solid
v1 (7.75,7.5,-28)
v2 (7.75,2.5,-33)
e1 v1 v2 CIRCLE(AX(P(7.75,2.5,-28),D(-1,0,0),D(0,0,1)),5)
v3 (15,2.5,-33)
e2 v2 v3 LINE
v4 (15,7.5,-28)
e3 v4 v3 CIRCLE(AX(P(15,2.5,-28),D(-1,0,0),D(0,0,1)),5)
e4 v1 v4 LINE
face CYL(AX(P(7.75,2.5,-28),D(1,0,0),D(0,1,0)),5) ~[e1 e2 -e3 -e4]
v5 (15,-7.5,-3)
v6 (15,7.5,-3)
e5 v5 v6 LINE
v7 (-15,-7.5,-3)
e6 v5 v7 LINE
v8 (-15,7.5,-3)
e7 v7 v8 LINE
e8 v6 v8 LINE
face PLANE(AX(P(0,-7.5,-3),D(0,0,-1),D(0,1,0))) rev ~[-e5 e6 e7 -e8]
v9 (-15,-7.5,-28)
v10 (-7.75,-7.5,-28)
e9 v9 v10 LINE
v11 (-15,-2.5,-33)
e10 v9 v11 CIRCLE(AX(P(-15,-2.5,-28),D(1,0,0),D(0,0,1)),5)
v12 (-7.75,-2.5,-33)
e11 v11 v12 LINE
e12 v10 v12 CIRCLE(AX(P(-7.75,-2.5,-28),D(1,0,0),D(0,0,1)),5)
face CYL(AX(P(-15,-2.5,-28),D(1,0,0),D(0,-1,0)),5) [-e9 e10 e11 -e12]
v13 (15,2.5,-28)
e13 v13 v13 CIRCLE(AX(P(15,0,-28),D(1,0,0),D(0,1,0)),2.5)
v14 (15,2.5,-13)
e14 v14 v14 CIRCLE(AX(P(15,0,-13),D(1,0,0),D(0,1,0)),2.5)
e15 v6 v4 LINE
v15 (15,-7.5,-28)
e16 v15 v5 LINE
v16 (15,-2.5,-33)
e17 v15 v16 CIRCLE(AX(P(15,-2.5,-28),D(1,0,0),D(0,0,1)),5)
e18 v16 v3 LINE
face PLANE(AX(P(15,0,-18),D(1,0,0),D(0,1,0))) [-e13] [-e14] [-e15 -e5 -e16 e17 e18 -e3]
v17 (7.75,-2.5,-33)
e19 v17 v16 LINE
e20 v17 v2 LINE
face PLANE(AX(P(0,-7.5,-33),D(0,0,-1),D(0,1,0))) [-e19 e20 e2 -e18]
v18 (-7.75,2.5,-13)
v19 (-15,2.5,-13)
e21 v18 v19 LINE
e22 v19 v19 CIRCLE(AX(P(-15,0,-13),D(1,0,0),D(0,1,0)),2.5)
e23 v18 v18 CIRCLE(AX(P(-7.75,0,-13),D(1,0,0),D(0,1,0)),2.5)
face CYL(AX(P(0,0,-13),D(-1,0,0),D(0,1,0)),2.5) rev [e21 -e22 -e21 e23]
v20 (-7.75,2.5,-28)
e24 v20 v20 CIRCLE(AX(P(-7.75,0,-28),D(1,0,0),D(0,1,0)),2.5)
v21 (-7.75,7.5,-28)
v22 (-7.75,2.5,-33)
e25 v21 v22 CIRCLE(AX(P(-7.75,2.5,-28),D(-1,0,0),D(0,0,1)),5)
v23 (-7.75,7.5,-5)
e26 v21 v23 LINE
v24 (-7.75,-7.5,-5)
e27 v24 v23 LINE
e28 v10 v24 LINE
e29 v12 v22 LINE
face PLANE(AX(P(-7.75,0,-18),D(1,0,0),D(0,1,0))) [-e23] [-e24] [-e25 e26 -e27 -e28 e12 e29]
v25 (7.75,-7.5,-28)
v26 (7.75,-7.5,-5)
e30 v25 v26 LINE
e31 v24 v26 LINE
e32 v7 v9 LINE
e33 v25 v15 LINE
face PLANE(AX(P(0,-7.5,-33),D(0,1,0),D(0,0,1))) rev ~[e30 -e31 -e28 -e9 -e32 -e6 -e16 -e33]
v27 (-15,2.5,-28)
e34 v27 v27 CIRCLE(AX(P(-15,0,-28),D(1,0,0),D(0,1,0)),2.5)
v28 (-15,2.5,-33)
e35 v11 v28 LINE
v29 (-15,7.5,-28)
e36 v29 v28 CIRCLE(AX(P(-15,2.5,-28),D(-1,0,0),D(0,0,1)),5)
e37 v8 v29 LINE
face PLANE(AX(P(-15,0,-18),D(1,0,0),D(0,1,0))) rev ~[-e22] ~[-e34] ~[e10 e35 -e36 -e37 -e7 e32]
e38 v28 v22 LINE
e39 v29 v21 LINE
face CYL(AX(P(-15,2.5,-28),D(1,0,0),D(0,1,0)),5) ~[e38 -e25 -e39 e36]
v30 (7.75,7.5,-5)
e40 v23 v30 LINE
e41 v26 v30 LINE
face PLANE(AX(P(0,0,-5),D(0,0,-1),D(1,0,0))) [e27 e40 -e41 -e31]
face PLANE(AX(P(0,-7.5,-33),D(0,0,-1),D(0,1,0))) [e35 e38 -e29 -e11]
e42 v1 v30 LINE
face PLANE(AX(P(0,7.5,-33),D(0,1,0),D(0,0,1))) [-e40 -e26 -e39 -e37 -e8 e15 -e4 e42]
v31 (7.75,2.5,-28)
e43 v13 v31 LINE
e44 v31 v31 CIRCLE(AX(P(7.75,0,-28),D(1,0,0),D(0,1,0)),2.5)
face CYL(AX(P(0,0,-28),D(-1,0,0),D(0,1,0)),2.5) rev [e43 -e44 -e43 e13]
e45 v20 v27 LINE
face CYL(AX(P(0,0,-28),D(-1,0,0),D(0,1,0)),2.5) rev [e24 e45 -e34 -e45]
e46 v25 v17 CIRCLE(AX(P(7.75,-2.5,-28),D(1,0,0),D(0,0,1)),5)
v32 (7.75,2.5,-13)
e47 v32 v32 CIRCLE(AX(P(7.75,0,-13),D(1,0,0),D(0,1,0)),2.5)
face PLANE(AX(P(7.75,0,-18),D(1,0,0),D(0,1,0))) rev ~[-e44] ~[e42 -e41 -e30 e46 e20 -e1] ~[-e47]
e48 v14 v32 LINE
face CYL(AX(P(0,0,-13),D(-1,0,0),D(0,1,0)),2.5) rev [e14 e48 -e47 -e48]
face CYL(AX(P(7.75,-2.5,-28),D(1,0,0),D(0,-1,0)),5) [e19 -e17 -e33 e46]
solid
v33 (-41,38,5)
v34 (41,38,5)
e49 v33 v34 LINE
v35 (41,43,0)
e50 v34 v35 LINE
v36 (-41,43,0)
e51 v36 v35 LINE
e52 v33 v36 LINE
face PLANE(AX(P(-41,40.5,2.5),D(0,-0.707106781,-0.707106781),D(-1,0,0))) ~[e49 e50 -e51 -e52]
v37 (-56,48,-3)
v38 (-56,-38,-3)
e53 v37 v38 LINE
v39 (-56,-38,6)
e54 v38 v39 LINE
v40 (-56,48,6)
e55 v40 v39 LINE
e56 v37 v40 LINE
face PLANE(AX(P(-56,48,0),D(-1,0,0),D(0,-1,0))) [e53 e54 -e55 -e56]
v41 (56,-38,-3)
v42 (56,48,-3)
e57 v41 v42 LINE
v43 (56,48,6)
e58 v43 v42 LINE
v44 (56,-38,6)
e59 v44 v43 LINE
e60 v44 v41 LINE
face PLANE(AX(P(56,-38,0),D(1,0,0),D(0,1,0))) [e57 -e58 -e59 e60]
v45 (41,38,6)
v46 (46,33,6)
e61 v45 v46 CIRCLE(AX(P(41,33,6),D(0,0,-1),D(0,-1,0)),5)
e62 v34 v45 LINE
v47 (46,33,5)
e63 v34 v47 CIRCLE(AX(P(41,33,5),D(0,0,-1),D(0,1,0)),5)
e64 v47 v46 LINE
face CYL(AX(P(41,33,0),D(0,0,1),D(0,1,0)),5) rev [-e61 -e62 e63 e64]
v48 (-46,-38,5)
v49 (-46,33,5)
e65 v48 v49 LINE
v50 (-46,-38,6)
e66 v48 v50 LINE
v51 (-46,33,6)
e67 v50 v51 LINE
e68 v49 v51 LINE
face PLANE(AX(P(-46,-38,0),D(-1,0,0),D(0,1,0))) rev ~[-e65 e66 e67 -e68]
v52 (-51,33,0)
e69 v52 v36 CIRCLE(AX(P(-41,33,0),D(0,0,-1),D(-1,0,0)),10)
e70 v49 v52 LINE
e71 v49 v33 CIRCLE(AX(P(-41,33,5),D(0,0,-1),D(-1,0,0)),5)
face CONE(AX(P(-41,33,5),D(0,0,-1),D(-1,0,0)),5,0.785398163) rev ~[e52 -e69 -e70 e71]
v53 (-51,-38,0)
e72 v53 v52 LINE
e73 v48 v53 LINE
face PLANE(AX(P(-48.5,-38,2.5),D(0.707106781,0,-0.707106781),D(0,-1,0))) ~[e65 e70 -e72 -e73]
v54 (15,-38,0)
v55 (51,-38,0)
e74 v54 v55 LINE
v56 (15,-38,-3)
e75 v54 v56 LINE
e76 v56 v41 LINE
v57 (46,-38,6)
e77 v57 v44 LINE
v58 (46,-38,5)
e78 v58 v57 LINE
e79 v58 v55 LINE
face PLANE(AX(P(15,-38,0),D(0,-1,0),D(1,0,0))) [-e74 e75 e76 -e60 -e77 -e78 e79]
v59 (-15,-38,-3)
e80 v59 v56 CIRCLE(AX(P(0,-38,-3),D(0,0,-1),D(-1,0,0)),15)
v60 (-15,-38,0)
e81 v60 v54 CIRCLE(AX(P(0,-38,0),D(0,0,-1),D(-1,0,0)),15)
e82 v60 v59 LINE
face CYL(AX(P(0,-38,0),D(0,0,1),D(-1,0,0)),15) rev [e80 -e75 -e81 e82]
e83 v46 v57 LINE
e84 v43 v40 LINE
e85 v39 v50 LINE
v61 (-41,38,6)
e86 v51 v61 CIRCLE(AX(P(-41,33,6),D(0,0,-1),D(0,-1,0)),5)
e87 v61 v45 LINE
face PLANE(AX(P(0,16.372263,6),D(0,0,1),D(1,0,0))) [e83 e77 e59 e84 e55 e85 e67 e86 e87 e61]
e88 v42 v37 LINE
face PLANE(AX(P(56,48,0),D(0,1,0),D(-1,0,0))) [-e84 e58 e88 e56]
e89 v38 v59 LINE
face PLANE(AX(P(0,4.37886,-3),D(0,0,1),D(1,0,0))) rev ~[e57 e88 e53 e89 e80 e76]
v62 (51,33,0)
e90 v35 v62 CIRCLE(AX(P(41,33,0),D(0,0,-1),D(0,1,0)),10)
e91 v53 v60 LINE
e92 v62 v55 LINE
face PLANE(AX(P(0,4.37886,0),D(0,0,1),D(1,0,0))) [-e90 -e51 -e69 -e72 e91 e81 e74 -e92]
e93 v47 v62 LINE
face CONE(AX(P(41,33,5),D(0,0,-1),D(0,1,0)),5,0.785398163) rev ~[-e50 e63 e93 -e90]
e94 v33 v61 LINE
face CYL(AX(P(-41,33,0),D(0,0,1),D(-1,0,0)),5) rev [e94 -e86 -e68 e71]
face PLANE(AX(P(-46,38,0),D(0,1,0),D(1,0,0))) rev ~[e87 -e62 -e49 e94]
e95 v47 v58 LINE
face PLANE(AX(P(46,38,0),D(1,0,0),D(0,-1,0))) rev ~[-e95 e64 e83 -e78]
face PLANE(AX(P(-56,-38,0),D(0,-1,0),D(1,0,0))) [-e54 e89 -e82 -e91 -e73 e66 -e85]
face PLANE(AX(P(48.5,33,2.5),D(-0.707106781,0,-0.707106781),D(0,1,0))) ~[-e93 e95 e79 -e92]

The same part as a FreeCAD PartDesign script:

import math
import FreeCAD as App
import Part
import Sketcher

V = App.Vector
Q = App.Units.Quantity


def edges_at(feature, points):
    """Names of the edges that pass closest to the given points."""
    edges = feature.Shape.Edges
    near = lambda p: min(range(len(edges)), key=lambda i: edges[i].distToShape(Part.Vertex(*p))[0])
    return sorted({f"Edge{near(p) + 1}" for p in points})


def add_polygon(sketch, points):
    """Adds a closed chain of lines whose ends are joined by coincident constraints."""
    first, n = sketch.GeometryCount, len(points)
    for a, b in zip(points, points[1:] + points[:1]):
        sketch.addGeometry(Part.LineSegment(App.Vector(*a, 0), App.Vector(*b, 0)), False)
    for i in range(n):
        sketch.addConstraint(Sketcher.Constraint("Coincident", first + i, 2, first + (i + 1) % n, 1))

doc = App.newDocument("Part")
body = doc.addObject("PartDesign::Body", "Body")

sketch1 = body.newObject("Sketcher::SketchObject", "Sketch")
sketch1.AttachmentSupport = (doc.getObject("XY_Plane"), [""])
sketch1.MapMode = "FlatFace"
add_polygon(sketch1, [(-46, -38), (-46, 38), (46, 38), (46, -38), (56, -38), (56, 48), (-56, 48), (-56, -38)])
sketch1.addConstraint([
    Sketcher.Constraint("Vertical", 0),
    Sketcher.Constraint("Horizontal", 1),
    Sketcher.Constraint("Vertical", 2),
    Sketcher.Constraint("Horizontal", 3),
    Sketcher.Constraint("Vertical", 4),
    Sketcher.Constraint("Horizontal", 5),
    Sketcher.Constraint("Vertical", 6),
    Sketcher.Constraint("Horizontal", 7),
    Sketcher.Constraint("Symmetric", 0, 2, 2, 2, -1, 1),
    Sketcher.Constraint("Symmetric", 3, 2, 6, 2, -2),
    Sketcher.Constraint("DistanceX", 1, 1, 1, 2, Q("92 mm")),
    Sketcher.Constraint("DistanceX", 3, 1, 3, 2, Q("10 mm")),
    Sketcher.Constraint("DistanceY", 0, 1, 0, 2, Q("76 mm")),
    Sketcher.Constraint("DistanceY", 4, 1, 4, 2, Q("86 mm")),
])
pad1 = body.newObject("PartDesign::Pad", "Pad")
pad1.Profile = sketch1
pad1.Length = 6
doc.recompute()

fillet = body.newObject("PartDesign::Fillet", "Fillet")
fillet.Base = (pad1, edges_at(pad1, [(-46, 38, 3), (46, 38, 3)]))
fillet.Radius = 5
doc.recompute()

chamfer = body.newObject("PartDesign::Chamfer", "Chamfer")
chamfer.Base = (fillet, edges_at(fillet, [(-46, -2.5, 0)]))
chamfer.Size = 5

sketch2 = body.newObject("Sketcher::SketchObject", "Sketch001")
sketch2.AttachmentSupport = (doc.getObject("XY_Plane"), [""])
sketch2.MapMode = "FlatFace"
sketch2.addGeometry([
    Part.LineSegment(V(56, 48, 0), V(-56, 48, 0)),
    Part.LineSegment(V(-56, 48, 0), V(-56, -38, 0)),
    Part.LineSegment(V(-56, -38, 0), V(-15, -38, 0)),
    Part.ArcOfCircle(Part.Circle(V(0, -38, 0), V(0, 0, 1), 15), math.radians(0), math.radians(180)),
    Part.LineSegment(V(15, -38, 0), V(56, -38, 0)),
    Part.LineSegment(V(56, -38, 0), V(56, 48, 0)),
], False)
sketch2.addConstraint([
    Sketcher.Constraint("Coincident", 0, 2, 1, 1),
    Sketcher.Constraint("Coincident", 1, 2, 2, 1),
    Sketcher.Constraint("Coincident", 2, 2, 3, 2),
    Sketcher.Constraint("Coincident", 3, 1, 4, 1),
    Sketcher.Constraint("Coincident", 4, 2, 5, 1),
    Sketcher.Constraint("Coincident", 5, 2, 0, 1),
    Sketcher.Constraint("Horizontal", 0),
    Sketcher.Constraint("Vertical", 1),
    Sketcher.Constraint("Horizontal", 2),
    Sketcher.Constraint("Horizontal", 4),
    Sketcher.Constraint("Vertical", 5),
    Sketcher.Constraint("Symmetric", 2, 2, 3, 1, -2),
    Sketcher.Constraint("Horizontal", 3, 3, 1, 2),
    Sketcher.Constraint("Equal", 2, 4),
    Sketcher.Constraint("Radius", 3, Q("15 mm")),
    Sketcher.Constraint("DistanceX", 0, 2, 0, 1, Q("112.000001 mm")),
    Sketcher.Constraint("DistanceY", 1, 2, 1, 1, Q("86 mm")),
    Sketcher.Constraint("DistanceY", 3, 3, -1, 1, Q("38 mm")),
])
pad2 = body.newObject("PartDesign::Pad", "Pad001")
pad2.Profile = sketch2
pad2.Length = 3
pad2.Reversed = True
body2 = doc.addObject("PartDesign::Body", "Body001")
body2.AllowCompound = True

sketch3 = body2.newObject("Sketcher::SketchObject", "Sketch002")
sketch3.AttachmentSupport = (doc.getObject("YZ_Plane001"), [""])
sketch3.MapMode = "FlatFace"
add_polygon(sketch3, [(-7.5, -3), (-7.5, -33), (7.5, -33), (7.5, -3)])
sketch3.addGeometry(Part.Circle(V(0, -28, 0), V(0, 0, 1), 2.5), False)
sketch3.addGeometry(Part.Circle(V(0, -13, 0), V(0, 0, 1), 2.5), False)
sketch3.addConstraint([
    Sketcher.Constraint("Vertical", 0),
    Sketcher.Constraint("Horizontal", 1),
    Sketcher.Constraint("Vertical", 2),
    Sketcher.Constraint("Horizontal", 3),
    Sketcher.Constraint("Equal", 4, 5),
    Sketcher.Constraint("PointOnObject", 4, 3, -2),
    Sketcher.Constraint("PointOnObject", 5, 3, -2),
    Sketcher.Constraint("Diameter", 4, Q("5 mm")),
    Sketcher.Constraint("DistanceX", 1, 1, 1, 2, Q("15 mm")),
    Sketcher.Constraint("DistanceY", 0, 2, 0, 1, Q("30 mm")),
    Sketcher.Constraint("DistanceY", 4, 3, -1, 1, Q("28 mm")),
    Sketcher.Constraint("DistanceY", 5, 3, -1, 1, Q("13 mm")),
    Sketcher.Constraint("DistanceY", 0, 2, -1, 1, Q("33 mm")),
    Sketcher.Constraint("DistanceX", 0, 2, -1, 1, Q("7.5 mm")),
])
pad3 = body2.newObject("PartDesign::Pad", "Pad002")
pad3.Profile = sketch3
pad3.Length = 30
pad3.Midplane = True

sketch4 = body2.newObject("Sketcher::SketchObject", "Sketch003")
sketch4.AttachmentSupport = (doc.getObject("YZ_Plane001"), [""])
sketch4.MapMode = "FlatFace"
add_polygon(sketch4, [(-7.5, -3), (-7.5, -33), (7.5, -33), (7.5, -3)])
sketch4.addGeometry(Part.Circle(V(0, -28, 0), V(0, 0, 1), 2.5), False)
sketch4.addGeometry(Part.Circle(V(0, -13, 0), V(0, 0, 1), 2.5), False)
sketch4.addConstraint([
    Sketcher.Constraint("Vertical", 0),
    Sketcher.Constraint("Horizontal", 1),
    Sketcher.Constraint("Vertical", 2),
    Sketcher.Constraint("Horizontal", 3),
    Sketcher.Constraint("Equal", 4, 5),
    Sketcher.Constraint("PointOnObject", 4, 3, -2),
    Sketcher.Constraint("PointOnObject", 5, 3, -2),
    Sketcher.Constraint("Diameter", 4, Q("5 mm")),
    Sketcher.Constraint("DistanceX", 1, 1, 1, 2, Q("15 mm")),
    Sketcher.Constraint("DistanceY", 0, 2, 0, 1, Q("30 mm")),
    Sketcher.Constraint("DistanceY", 4, 3, -1, 1, Q("28 mm")),
    Sketcher.Constraint("DistanceY", 5, 3, -1, 1, Q("13 mm")),
    Sketcher.Constraint("DistanceY", 0, 2, -1, 1, Q("33 mm")),
    Sketcher.Constraint("DistanceX", 0, 2, -1, 1, Q("7.5 mm")),
])
pocket1 = body2.newObject("PartDesign::Pocket", "Pocket")
pocket1.Profile = sketch4
pocket1.Length = 15.5
pocket1.Midplane = True

sketch5 = body2.newObject("Sketcher::SketchObject", "Sketch004")
sketch5.AttachmentSupport = (doc.getObject("XY_Plane001"), [""])
sketch5.MapMode = "FlatFace"
sketch5.AttachmentOffset = App.Placement(V(0, 0, -3), App.Rotation())
add_polygon(sketch5, [(-15, -7.5), (-15, 7.5), (15, 7.5), (15, -7.5)])
sketch5.addConstraint([
    Sketcher.Constraint("Vertical", 0),
    Sketcher.Constraint("Horizontal", 1),
    Sketcher.Constraint("Vertical", 2),
    Sketcher.Constraint("Horizontal", 3),
    Sketcher.Constraint("Symmetric", 0, 2, 2, 2, -1, 1),
    Sketcher.Constraint("DistanceX", 1, 1, 1, 2, Q("30 mm")),
    Sketcher.Constraint("DistanceY", 0, 1, 0, 2, Q("15 mm")),
])
pad4 = body2.newObject("PartDesign::Pad", "Pad003")
pad4.Profile = sketch5
pad4.Length = 2
pad4.Reversed = True
doc.recompute()

fillet2 = body2.newObject("PartDesign::Fillet", "Fillet001")
fillet2.Base = (pad4, edges_at(pad4, [
    (11.375, -7.5, -33),
    (11.375, 7.5, -33),
    (-11.375, -7.5, -33),
    (-11.375, 7.5, -33),
]))
fillet2.Radius = 5

doc.recompute()
